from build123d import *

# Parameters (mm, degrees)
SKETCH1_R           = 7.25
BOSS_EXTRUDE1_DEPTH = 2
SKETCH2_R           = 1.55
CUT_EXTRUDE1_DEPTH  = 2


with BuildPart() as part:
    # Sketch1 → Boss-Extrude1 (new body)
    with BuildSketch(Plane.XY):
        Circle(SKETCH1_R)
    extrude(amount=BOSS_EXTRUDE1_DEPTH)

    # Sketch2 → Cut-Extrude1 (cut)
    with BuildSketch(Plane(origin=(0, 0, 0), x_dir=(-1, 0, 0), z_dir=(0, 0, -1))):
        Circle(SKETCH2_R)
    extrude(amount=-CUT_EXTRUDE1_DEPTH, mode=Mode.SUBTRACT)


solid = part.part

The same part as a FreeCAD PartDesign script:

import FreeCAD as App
import Part
import Sketcher
from FreeCAD import Vector
Q = App.Units.Quantity

doc = App.newDocument("Part")
body = doc.addObject("PartDesign::Body", "Body")

# Sketch on XY plane
sketch1 = body.newObject("Sketcher::SketchObject", "Sketch")
sketch1.AttachmentSupport = (doc.getObject("XY_Plane"), [""])
sketch1.MapMode = "FlatFace"
sketch1.addGeometry(Part.Circle(Vector(0, 0, 0), Vector(0, 0, 1), 7), False)
sketch1.addConstraint([
    Sketcher.Constraint("Coincident", 0, 3, -1, 1),
    Sketcher.Constraint("Diameter", 0, Q("14.5 mm")),
])
pad1 = body.newObject("PartDesign::Pad", "Pad")
pad1.Profile = sketch1
pad1.Length = 2

# Sketch on XY plane
sketch2 = body.newObject("Sketcher::SketchObject", "Sketch001")
sketch2.AttachmentSupport = (doc.getObject("XY_Plane"), [""])
sketch2.MapMode = "FlatFace"
sketch2.addGeometry(Part.Circle(Vector(0, 0, 0), Vector(0, 0, 1), 1.6), False)
sketch2.addConstraint([
    Sketcher.Constraint("Coincident", 0, 3, -1, 1),
    Sketcher.Constraint("Diameter", 0, Q("3.1 mm")),
])
pocket1 = body.newObject("PartDesign::Pocket", "Pocket")
pocket1.Profile = sketch2
pocket1.Length = 2
pocket1.Reversed = True

doc.recompute()
